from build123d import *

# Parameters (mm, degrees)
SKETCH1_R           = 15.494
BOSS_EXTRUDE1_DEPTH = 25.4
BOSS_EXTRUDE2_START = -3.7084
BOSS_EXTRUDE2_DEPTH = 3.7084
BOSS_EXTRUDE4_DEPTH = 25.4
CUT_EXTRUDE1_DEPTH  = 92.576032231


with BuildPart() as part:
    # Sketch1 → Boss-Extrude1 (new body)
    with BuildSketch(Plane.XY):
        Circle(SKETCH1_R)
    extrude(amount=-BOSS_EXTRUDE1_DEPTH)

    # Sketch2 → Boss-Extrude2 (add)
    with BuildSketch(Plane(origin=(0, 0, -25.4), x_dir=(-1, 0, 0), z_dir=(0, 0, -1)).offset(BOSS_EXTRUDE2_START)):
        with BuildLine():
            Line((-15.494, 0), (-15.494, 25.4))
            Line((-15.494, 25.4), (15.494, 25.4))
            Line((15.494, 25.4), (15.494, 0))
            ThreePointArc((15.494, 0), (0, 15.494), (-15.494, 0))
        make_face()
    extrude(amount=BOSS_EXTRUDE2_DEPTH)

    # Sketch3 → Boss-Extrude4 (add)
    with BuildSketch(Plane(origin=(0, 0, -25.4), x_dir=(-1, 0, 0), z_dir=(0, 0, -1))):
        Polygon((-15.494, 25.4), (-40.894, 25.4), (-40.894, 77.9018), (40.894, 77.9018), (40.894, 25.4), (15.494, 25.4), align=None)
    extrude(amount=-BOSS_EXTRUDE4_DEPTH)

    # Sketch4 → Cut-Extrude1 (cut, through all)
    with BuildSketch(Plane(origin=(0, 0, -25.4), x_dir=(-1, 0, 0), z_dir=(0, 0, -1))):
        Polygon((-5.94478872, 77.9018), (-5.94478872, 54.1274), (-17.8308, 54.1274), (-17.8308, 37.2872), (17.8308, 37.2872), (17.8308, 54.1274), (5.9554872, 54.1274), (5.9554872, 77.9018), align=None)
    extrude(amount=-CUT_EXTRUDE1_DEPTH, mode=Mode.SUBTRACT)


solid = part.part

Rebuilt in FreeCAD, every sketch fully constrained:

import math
import FreeCAD as App
import Part
import Sketcher
Q = App.Units.Quantity


def add_polygon(sketch, points):
    """Adds a closed chain of lines whose ends are joined by coincident constraints."""
    first, n = sketch.GeometryCount, len(points)
    for a, b in zip(points, points[1:] + points[:1]):
        sketch.addGeometry(Part.LineSegment(App.Vector(*a, 0), App.Vector(*b, 0)), False)
    for i in range(n):
        sketch.addConstraint(Sketcher.Constraint("Coincident", first + i, 2, first + (i + 1) % n, 1))

doc = App.newDocument("Part")
body = doc.addObject("PartDesign::Body", "Body")

# Sketch on XY plane
sketch1 = doc.addObject("Sketcher::SketchObject", "Sketch")
body.addObject(sketch1)
sketch1.AttachmentSupport = (doc.XY_Plane, [""])
sketch1.MapMode = "FlatFace"
sketch1.addGeometry(Part.Circle(App.Vector(0, 0, 0), App.Vector(0, 0, 1), 15.494), False)
sketch1.addConstraint([
    Sketcher.Constraint("Coincident", 0, 3, -1, 1),
    Sketcher.Constraint("Diameter", 0, Q("1.22 in")),
])
pad1 = doc.addObject("PartDesign::Pad", "Pad")
body.addObject(pad1)
pad1.Profile = sketch1
pad1.Length = Q("1 in")
pad1.Reversed = True

# Sketch on XY plane
sketch2 = doc.addObject("Sketcher::SketchObject", "Sketch001")
body.addObject(sketch2)
sketch2.AttachmentSupport = (doc.XY_Plane, [""])
sketch2.MapMode = "FlatFace"
sketch2.AttachmentOffset = App.Placement(App.Vector(0, 0, -0.854 * 25.4), App.Rotation())
sketch2.addGeometry([
    Part.LineSegment(App.Vector(15.494, 25.4, 0), App.Vector(15.494, 0, 0)),
    Part.ArcOfCircle(Part.Circle(App.Vector(0, 0, 0), App.Vector(0, 0, 1), 15.494), math.radians(0), math.radians(180)),
    Part.LineSegment(App.Vector(-15.494, 0, 0), App.Vector(-15.494, 25.4, 0)),
    Part.LineSegment(App.Vector(-15.494, 25.4, 0), App.Vector(15.494, 25.4, 0)),
], False)
sketch2.addConstraint([
    Sketcher.Constraint("Tangent", 0, 2, 1, 1),
    Sketcher.Constraint("Tangent", 1, 2, 2, 1),
    Sketcher.Constraint("Coincident", 2, 2, 3, 1),
    Sketcher.Constraint("Coincident", 3, 2, 0, 1),
    Sketcher.Constraint("Vertical", 0),
    Sketcher.Constraint("Vertical", 2),
    Sketcher.Constraint("Horizontal", 3),
    Sketcher.Constraint("Coincident", 1, 3, -1, 1),
    Sketcher.Constraint("DistanceY", 0, 2, 0, 1, Q("1 in")),
    Sketcher.Constraint("Radius", 1, Q("0.61 in")),
])
pad2 = doc.addObject("PartDesign::Pad", "Pad001")
body.addObject(pad2)
pad2.Profile = sketch2
pad2.Length = Q("0.146 in")
pad2.Reversed = True

# Sketch on XY plane
sketch3 = doc.addObject("Sketcher::SketchObject", "Sketch002")
body.addObject(sketch3)
sketch3.AttachmentSupport = (doc.XY_Plane, [""])
sketch3.MapMode = "FlatFace"
sketch3.AttachmentOffset = App.Placement(App.Vector(0, 0, -1 * 25.4), App.Rotation())
add_polygon(sketch3, [(40.894, 25.4), (-40.894, 25.4), (-40.894, 77.9018), (40.894, 77.9018)])  # lines 0-3
sketch3.addConstraint([
    Sketcher.Constraint("Horizontal", 0),
    Sketcher.Constraint("Vertical", 1),
    Sketcher.Constraint("Horizontal", 2),
    Sketcher.Constraint("Vertical", 3),
    Sketcher.Constraint("DistanceY", -1, 1, 0, 2, Q("1 in")),
    Sketcher.Constraint("DistanceX", 0, 2, 0, 1, Q("3.22 in")),
    Sketcher.Constraint("DistanceY", 1, 1, 1, 2, Q("2.067 in")),
    Sketcher.Constraint("DistanceX", 0, 2, -1, 1, Q("1.61 in")),
])
pad3 = doc.addObject("PartDesign::Pad", "Pad002")
body.addObject(pad3)
pad3.Profile = sketch3
pad3.Length = Q("1 in")

# Sketch on XY plane
sketch4 = doc.addObject("Sketcher::SketchObject", "Sketch003")
body.addObject(sketch4)
sketch4.AttachmentSupport = (doc.XY_Plane, [""])
sketch4.MapMode = "FlatFace"
sketch4.AttachmentOffset = App.Placement(App.Vector(0, 0, -1 * 25.4), App.Rotation())
add_polygon(sketch4, [(5.944789, 77.9018), (5.944789, 54.1274), (17.8308, 54.1274), (17.8308, 37.2872), (-17.8308, 37.2872), (-17.8308, 54.1274), (-5.955487, 54.1274), (-5.955487, 77.9018)])  # lines 0-7
sketch4.addConstraint([
    Sketcher.Constraint("Vertical", 0),
    Sketcher.Constraint("Horizontal", 1),
    Sketcher.Constraint("Vertical", 2),
    Sketcher.Constraint("Horizontal", 3),
    Sketcher.Constraint("Vertical", 4),
    Sketcher.Constraint("Horizontal", 5),
    Sketcher.Constraint("Vertical", 6),
    Sketcher.Constraint("Horizontal", 7),
    Sketcher.Constraint("Symmetric", 1, 2, 4, 2, -2),
    Sketcher.Constraint("DistanceX", 3, 2, 3, 1, Q("1.404 in")),
    Sketcher.Constraint("DistanceY", 0, 2, 0, 1, Q("0.936 in")),
    Sketcher.Constraint("DistanceY", 2, 2, 2, 1, Q("0.663 in")),
    Sketcher.Constraint("DistanceY", -1, 1, 0, 2, Q("2.131 in")),
    Sketcher.Constraint("DistanceX", 1, 1, 1, 2, 11.886011),
    Sketcher.Constraint("DistanceX", 5, 1, 5, 2, 11.875313),
])
pocket1 = doc.addObject("PartDesign::Pocket", "Pocket")
body.addObject(pocket1)
pocket1.Profile = sketch4
pocket1.Type = "ThroughAll"
pocket1.Reversed = True

doc.recompute()
